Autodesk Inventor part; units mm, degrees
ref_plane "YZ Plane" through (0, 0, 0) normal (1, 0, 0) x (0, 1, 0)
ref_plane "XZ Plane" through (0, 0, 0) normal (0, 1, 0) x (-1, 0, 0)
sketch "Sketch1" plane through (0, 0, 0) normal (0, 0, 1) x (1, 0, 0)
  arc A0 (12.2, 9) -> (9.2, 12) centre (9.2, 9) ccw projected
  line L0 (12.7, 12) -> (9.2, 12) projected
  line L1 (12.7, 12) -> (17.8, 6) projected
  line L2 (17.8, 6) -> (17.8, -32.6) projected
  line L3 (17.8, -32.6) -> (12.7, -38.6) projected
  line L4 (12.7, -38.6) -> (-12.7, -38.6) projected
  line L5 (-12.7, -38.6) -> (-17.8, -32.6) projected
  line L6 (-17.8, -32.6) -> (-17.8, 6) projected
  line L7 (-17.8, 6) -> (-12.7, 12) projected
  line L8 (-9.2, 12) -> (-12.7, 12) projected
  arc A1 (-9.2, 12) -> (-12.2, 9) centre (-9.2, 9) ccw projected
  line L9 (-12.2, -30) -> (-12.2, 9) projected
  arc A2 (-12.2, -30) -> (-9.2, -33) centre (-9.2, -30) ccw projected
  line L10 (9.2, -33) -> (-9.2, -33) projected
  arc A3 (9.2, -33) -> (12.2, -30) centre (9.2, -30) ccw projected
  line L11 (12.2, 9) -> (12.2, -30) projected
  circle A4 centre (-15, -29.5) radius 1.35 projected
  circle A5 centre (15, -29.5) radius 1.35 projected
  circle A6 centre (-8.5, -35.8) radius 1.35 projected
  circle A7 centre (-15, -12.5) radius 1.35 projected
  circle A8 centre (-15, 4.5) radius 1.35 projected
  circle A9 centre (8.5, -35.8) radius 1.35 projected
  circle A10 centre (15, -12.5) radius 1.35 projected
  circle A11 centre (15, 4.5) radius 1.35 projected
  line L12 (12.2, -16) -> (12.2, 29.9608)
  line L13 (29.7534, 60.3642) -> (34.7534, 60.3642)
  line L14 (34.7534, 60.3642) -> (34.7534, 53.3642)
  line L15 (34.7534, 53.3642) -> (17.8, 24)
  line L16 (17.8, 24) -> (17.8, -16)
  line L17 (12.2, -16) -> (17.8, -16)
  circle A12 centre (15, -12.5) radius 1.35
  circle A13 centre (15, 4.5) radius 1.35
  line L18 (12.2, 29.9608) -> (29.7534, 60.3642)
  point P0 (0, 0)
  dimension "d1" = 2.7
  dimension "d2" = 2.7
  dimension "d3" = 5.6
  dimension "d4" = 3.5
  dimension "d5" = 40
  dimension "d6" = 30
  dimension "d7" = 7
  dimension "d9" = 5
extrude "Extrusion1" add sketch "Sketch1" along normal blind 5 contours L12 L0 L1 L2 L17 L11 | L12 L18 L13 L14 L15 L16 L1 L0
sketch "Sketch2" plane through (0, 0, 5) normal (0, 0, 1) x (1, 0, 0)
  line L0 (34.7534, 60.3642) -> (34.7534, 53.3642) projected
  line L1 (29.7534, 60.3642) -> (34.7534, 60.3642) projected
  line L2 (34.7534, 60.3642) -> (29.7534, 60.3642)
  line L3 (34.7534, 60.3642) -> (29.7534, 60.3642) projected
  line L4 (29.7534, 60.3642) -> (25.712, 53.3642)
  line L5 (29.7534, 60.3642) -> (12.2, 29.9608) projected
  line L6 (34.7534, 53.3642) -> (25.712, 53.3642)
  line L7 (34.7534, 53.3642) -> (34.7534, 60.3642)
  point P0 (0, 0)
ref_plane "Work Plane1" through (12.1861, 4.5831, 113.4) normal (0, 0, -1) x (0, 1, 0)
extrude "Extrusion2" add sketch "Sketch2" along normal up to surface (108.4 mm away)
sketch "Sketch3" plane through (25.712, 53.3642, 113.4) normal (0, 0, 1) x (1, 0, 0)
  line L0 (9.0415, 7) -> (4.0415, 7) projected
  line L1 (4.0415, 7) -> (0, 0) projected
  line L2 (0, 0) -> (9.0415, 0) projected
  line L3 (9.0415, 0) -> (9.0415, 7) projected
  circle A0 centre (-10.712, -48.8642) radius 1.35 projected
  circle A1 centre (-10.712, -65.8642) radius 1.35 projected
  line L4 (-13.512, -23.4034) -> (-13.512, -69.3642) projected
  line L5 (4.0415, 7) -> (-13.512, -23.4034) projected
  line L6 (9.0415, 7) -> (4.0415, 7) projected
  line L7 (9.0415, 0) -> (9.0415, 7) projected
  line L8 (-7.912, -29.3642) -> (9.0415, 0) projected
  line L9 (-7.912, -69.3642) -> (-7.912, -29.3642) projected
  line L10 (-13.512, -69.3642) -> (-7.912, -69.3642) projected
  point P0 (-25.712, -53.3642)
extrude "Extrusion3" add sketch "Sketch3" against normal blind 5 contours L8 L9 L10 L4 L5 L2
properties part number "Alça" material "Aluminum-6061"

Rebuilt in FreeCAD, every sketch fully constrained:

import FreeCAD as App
import Part
import Sketcher
Q = App.Units.Quantity


def add_polygon(sketch, points):
    """Adds a closed chain of lines whose ends are joined by coincident constraints."""
    first, n = sketch.GeometryCount, len(points)
    for a, b in zip(points, points[1:] + points[:1]):
        sketch.addGeometry(Part.LineSegment(App.Vector(*a, 0), App.Vector(*b, 0)), False)
    for i in range(n):
        sketch.addConstraint(Sketcher.Constraint("Coincident", first + i, 2, first + (i + 1) % n, 1))

doc = App.newDocument("Part")
params = doc.addObject("Spreadsheet::Sheet", "Params")
for row, (alias, value) in enumerate([
    ("sketch1_diameter", "2.7 mm"),
    ("sketch1_width", "5 mm"),
    ("sketch1_height", "40 mm"),
    ("sketch1_height2", "7 mm"),
    ("sketch1_width2", "5.6 mm"),
    ("pad1_length", "5 mm"),
    ("sketch2_width", "5 mm"),
    ("sketch2_height", "7 mm"),
    ("pad2_length", "108.4 mm"),
    ("sketch3_diameter", "2.7 mm"),
    ("sketch3_height", "40 mm"),
    ("sketch3_width", "5.6 mm"),
    ("pad3_length", "5 mm"),
], start=1):
    params.set(f"A{row}", alias)
    params.set(f"B{row}", "=" + value)
    params.setAlias(f"B{row}", alias)

body = doc.addObject("PartDesign::Body", "Body")

# Sketch on XY plane
sketch1 = doc.addObject("Sketcher::SketchObject", "Sketch")
body.addObject(sketch1)
sketch1.AttachmentSupport = (doc.XY_Plane, [""])
sketch1.MapMode = "FlatFace"
add_polygon(sketch1, [(12.2, -16), (17.8, -16), (17.8, 24), (34.8, 53.4), (34.8, 60.4), (29.8, 60.4), (12.2, 30)])  # lines 0-6
sketch1.addGeometry(Part.Circle(App.Vector(15, -12.5, 0), App.Vector(0, 0, 1), 1.4), False)  # 7
sketch1.addGeometry(Part.Circle(App.Vector(15, 4.5, 0), App.Vector(0, 0, 1), 1.4), False)  # 8
sketch1.addConstraint([
    Sketcher.Constraint("Horizontal", 0),
    Sketcher.Constraint("Vertical", 1),
    Sketcher.Constraint("Vertical", 3),
    Sketcher.Constraint("Horizontal", 4),
    Sketcher.Constraint("Vertical", 6),
    Sketcher.Constraint("Equal", 7, 8),
    Sketcher.Constraint("Parallel", 2, 5),
    Sketcher.Constraint("Vertical", 7, 3, 8, 3),
    Sketcher.Constraint("Diameter", 7, Q("2.7 mm")),
    Sketcher.Constraint("DistanceX", 4, 2, 4, 1, Q("5 mm")),
    Sketcher.Constraint("DistanceY", 1, 1, 1, 2, Q("40 mm")),
    Sketcher.Constraint("DistanceY", 3, 1, 3, 2, Q("7 mm")),
    Sketcher.Constraint("DistanceX", 0, 1, 0, 2, Q("5.6 mm")),
    Sketcher.Constraint("DistanceY", 0, 2, 7, 3, Q("3.5 mm")),
    Sketcher.Constraint("Angle", 2, Q("60 deg")),
    Sketcher.Constraint("DistanceX", -1, 1, 7, 3, Q("15 mm")),
    Sketcher.Constraint("DistanceY", 0, 2, -1, 1, Q("16 mm")),
    Sketcher.Constraint("DistanceY", 7, 3, 8, 3, Q("17 mm")),
    Sketcher.Constraint("DistanceX", -1, 1, 0, 2, Q("17.8 mm")),
    Sketcher.Constraint("Distance", 2, Q("33.9068 mm")),
])
sketch1.setExpression("Constraints[15]", "Params.sketch1_diameter")
sketch1.setExpression("Constraints[16]", "Params.sketch1_width")
sketch1.setExpression("Constraints[17]", "Params.sketch1_height")
sketch1.setExpression("Constraints[18]", "Params.sketch1_height2")
sketch1.setExpression("Constraints[19]", "Params.sketch1_width2")
pad1 = doc.addObject("PartDesign::Pad", "Pad")
body.addObject(pad1)
pad1.Profile = sketch1
pad1.setExpression("Length", "Params.pad1_length")

# Sketch on XY plane
sketch2 = doc.addObject("Sketcher::SketchObject", "Sketch001")
body.addObject(sketch2)
sketch2.AttachmentSupport = (doc.XY_Plane, [""])
sketch2.MapMode = "FlatFace"
sketch2.AttachmentOffset = App.Placement(App.Vector(0, 0, 5), App.Rotation())
add_polygon(sketch2, [(35, 53), (35, 60), (30, 60), (26, 53)])  # lines 0-3
sketch2.addConstraint([
    Sketcher.Constraint("Vertical", 0),
    Sketcher.Constraint("Horizontal", 1),
    Sketcher.Constraint("Horizontal", 3),
    Sketcher.Constraint("DistanceX", 1, 2, 1, 1, Q("5 mm")),
    Sketcher.Constraint("DistanceY", 0, 1, 0, 2, Q("7 mm")),
    Sketcher.Constraint("Angle", 2, Q("-119.9997 deg")),
    Sketcher.Constraint("DistanceX", -1, 1, 2, 2, Q("25.712 mm")),
    Sketcher.Constraint("DistanceY", -1, 1, 0, 2, Q("60.3642 mm")),
])
sketch2.setExpression("Constraints[7]", "Params.sketch2_width")
sketch2.setExpression("Constraints[8]", "Params.sketch2_height")
pad2 = doc.addObject("PartDesign::Pad", "Pad001")
body.addObject(pad2)
pad2.Profile = sketch2
pad2.setExpression("Length", "Params.pad2_length")

# Sketch on XY plane
sketch3 = doc.addObject("Sketcher::SketchObject", "Sketch002")
body.addObject(sketch3)
sketch3.AttachmentSupport = (doc.XY_Plane, [""])
sketch3.MapMode = "FlatFace"
sketch3.AttachmentOffset = App.Placement(App.Vector(0, 0, 113.4), App.Rotation())
add_polygon(sketch3, [(17.8, 24), (34.8, 53.4), (25.7, 53.4), (12.2, 30), (12.2, -16), (17.8, -16)])  # lines 0-5
sketch3.addGeometry(Part.Circle(App.Vector(15, -12.5, 0), App.Vector(0, 0, 1), 1.4), False)  # 6
sketch3.addGeometry(Part.Circle(App.Vector(15, 4.5, 0), App.Vector(0, 0, 1), 1.4), False)  # 7
sketch3.addConstraint([
    Sketcher.Constraint("Horizontal", 1),
    Sketcher.Constraint("Vertical", 3),
    Sketcher.Constraint("Horizontal", 4),
    Sketcher.Constraint("Vertical", 5),
    Sketcher.Constraint("Equal", 6, 7),
    Sketcher.Constraint("Parallel", 0, 2),
    Sketcher.Constraint("Vertical", 6, 3, 7, 3),
    Sketcher.Constraint("Diameter", 6, Q("2.7 mm")),
    Sketcher.Constraint("DistanceY", 5, 1, 5, 2, Q("40 mm")),
    Sketcher.Constraint("Angle", 0, Q("60 deg")),
    Sketcher.Constraint("DistanceX", 4, 1, 4, 2, Q("5.6 mm")),
    Sketcher.Constraint("DistanceX", -1, 1, 6, 3, Q("15 mm")),
    Sketcher.Constraint("DistanceY", 3, 2, -1, 1, Q("16 mm")),
    Sketcher.Constraint("DistanceY", 6, 3, 7, 3, Q("17 mm")),
    Sketcher.Constraint("DistanceY", 6, 3, -1, 1, Q("12.5 mm")),
    Sketcher.Constraint("DistanceX", -1, 1, 2, 2, Q("12.2 mm")),
    Sketcher.Constraint("Distance", 0, Q("33.907 mm")),
    Sketcher.Constraint("Distance", 2, Q("27.024 mm")),
])
sketch3.setExpression("Constraints[13]", "Params.sketch3_diameter")
sketch3.setExpression("Constraints[14]", "Params.sketch3_height")
sketch3.setExpression("Constraints[16]", "Params.sketch3_width")
pad3 = doc.addObject("PartDesign::Pad", "Pad002")
body.addObject(pad3)
pad3.Profile = sketch3
pad3.setExpression("Length", "Params.pad3_length")
pad3.Reversed = True

doc.recompute()
